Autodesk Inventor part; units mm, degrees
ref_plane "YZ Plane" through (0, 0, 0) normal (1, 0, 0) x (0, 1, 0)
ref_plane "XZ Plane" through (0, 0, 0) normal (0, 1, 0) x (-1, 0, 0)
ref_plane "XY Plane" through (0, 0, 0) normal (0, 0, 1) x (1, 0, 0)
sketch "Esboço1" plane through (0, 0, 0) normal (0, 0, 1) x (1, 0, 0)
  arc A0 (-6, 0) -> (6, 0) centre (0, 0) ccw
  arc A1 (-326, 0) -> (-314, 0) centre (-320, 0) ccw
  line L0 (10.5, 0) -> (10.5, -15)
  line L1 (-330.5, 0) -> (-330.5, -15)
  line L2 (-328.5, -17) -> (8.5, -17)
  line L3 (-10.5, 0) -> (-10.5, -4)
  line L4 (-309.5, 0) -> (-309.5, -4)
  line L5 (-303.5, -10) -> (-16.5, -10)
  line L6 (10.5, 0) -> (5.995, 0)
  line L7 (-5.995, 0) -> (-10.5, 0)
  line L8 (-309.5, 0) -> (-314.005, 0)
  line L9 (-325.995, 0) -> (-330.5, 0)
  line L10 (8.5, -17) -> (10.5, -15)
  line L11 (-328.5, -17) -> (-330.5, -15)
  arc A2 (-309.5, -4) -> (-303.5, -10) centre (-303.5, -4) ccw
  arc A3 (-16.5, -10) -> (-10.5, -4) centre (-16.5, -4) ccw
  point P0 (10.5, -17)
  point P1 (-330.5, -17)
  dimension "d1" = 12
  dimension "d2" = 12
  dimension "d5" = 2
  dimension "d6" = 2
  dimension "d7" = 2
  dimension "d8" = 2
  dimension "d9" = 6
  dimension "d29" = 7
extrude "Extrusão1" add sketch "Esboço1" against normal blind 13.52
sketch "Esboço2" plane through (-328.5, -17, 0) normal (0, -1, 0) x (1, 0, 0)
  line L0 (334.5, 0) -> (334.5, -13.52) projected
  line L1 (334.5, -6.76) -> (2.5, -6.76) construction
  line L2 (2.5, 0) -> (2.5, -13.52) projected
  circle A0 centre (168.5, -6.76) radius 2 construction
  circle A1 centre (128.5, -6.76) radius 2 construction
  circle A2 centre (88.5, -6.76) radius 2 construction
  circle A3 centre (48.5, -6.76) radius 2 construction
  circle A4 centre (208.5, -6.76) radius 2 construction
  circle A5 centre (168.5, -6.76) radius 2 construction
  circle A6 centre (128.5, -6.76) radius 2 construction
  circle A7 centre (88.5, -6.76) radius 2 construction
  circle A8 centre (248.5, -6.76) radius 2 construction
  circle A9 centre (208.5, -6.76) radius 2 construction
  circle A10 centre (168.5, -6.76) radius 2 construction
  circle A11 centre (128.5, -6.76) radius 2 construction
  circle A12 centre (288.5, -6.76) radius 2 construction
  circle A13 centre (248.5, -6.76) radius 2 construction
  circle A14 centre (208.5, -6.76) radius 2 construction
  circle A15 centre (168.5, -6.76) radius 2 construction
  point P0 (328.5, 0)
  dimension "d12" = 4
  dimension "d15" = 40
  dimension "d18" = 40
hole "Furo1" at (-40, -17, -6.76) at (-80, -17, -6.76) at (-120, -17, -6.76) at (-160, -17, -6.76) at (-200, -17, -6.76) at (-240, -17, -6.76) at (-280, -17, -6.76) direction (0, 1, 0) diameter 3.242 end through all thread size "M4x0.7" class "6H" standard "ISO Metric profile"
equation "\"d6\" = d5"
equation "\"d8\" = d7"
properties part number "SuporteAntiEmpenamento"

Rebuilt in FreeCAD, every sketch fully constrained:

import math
import FreeCAD as App
import Part
import Sketcher
from FreeCAD import Vector
Q = App.Units.Quantity

doc = App.newDocument("Part")
body = doc.addObject("PartDesign::Body", "Body")

# Sketch on XY plane
sketch1 = doc.addObject("Sketcher::SketchObject", "Sketch")
body.addObject(sketch1)
sketch1.AttachmentSupport = (doc.XY_Plane, [""])
sketch1.MapMode = "FlatFace"
sketch1.addGeometry([
    Part.ArcOfCircle(Part.Circle(Vector(0, 0, 0), Vector(0, 0, 1), 6), math.radians(180), math.radians(360)),  # 0
    Part.LineSegment(Vector(-6, 0, 0), Vector(-10.5, 0, 0)),  # 1
    Part.LineSegment(Vector(-10.5, 0, 0), Vector(-10.5, -4, 0)),  # 2
    Part.ArcOfCircle(Part.Circle(Vector(-16.5, -4, 0), Vector(0, 0, 1), 6), math.radians(-90), math.radians(0)),  # 3
    Part.LineSegment(Vector(-16.5, -10, 0), Vector(-303.5, -10, 0)),  # 4
    Part.ArcOfCircle(Part.Circle(Vector(-303.5, -4, 0), Vector(0, 0, 1), 6), math.radians(180), math.radians(270)),  # 5
    Part.LineSegment(Vector(-309.5, -4, 0), Vector(-309.5, 0, 0)),  # 6
    Part.LineSegment(Vector(-309.5, 0, 0), Vector(-314, 0, 0)),  # 7
    Part.ArcOfCircle(Part.Circle(Vector(-320, 0, 0), Vector(0, 0, 1), 6), math.radians(180), math.radians(360)),  # 8
    Part.LineSegment(Vector(-326, 0, 0), Vector(-330.5, 0, 0)),  # 9
    Part.LineSegment(Vector(-330.5, 0, 0), Vector(-330.5, -15, 0)),  # 10
    Part.LineSegment(Vector(-330.5, -15, 0), Vector(-328.5, -17, 0)),  # 11
    Part.LineSegment(Vector(-328.5, -17, 0), Vector(8.5, -17, 0)),  # 12
    Part.LineSegment(Vector(8.5, -17, 0), Vector(10.5, -15, 0)),  # 13
    Part.LineSegment(Vector(10.5, -15, 0), Vector(10.5, 0, 0)),  # 14
    Part.LineSegment(Vector(10.5, 0, 0), Vector(6, 0, 0)),  # 15
], False)
sketch1.addConstraint([
    Sketcher.Constraint("Coincident", 0, 1, 1, 1),
    Sketcher.Constraint("Coincident", 1, 2, 2, 1),
    Sketcher.Constraint("Tangent", 2, 2, 3, 2),
    Sketcher.Constraint("Tangent", 3, 1, 4, 1),
    Sketcher.Constraint("Tangent", 4, 2, 5, 2),
    Sketcher.Constraint("Tangent", 5, 1, 6, 1),
    Sketcher.Constraint("Coincident", 6, 2, 7, 1),
    Sketcher.Constraint("Coincident", 7, 2, 8, 2),
    Sketcher.Constraint("Coincident", 8, 1, 9, 1),
    Sketcher.Constraint("Coincident", 9, 2, 10, 1),
    Sketcher.Constraint("Coincident", 10, 2, 11, 1),
    Sketcher.Constraint("Coincident", 11, 2, 12, 1),
    Sketcher.Constraint("Coincident", 12, 2, 13, 1),
    Sketcher.Constraint("Coincident", 13, 2, 14, 1),
    Sketcher.Constraint("Coincident", 14, 2, 15, 1),
    Sketcher.Constraint("Coincident", 15, 2, 0, 2),
    Sketcher.Constraint("Horizontal", 1),
    Sketcher.Constraint("Vertical", 2),
    Sketcher.Constraint("Horizontal", 4),
    Sketcher.Constraint("Vertical", 6),
    Sketcher.Constraint("Horizontal", 7),
    Sketcher.Constraint("Horizontal", 9),
    Sketcher.Constraint("Vertical", 10),
    Sketcher.Constraint("Horizontal", 12),
    Sketcher.Constraint("Vertical", 14),
    Sketcher.Constraint("Horizontal", 15),
    Sketcher.Constraint("Coincident", 0, 3, -1, 1),
    Sketcher.Constraint("Equal", 0, 3),
    Sketcher.Constraint("Equal", 3, 5),
    Sketcher.Constraint("Equal", 5, 8),
    Sketcher.Constraint("Symmetric", 1, 2, 14, 2, -1, 1),
    Sketcher.Constraint("PointOnObject", 8, 3, -1),
    Sketcher.Constraint("PointOnObject", 0, 1, -1),
    Sketcher.Constraint("PointOnObject", 6, 2, -1),
    Sketcher.Constraint("PointOnObject", 8, 1, -1),
    Sketcher.Constraint("Perpendicular", 11, 13),
    Sketcher.Constraint("Horizontal", 10, 2, 13, 2),
    Sketcher.Constraint("Equal", 1, 7),
    Sketcher.Constraint("Equal", 7, 9),
    Sketcher.Constraint("Equal", 11, 13),
    Sketcher.Constraint("Radius", 0, Q("6 mm")),
    Sketcher.Constraint("DistanceX", 10, 2, 11, 2, Q("2 mm")),
    Sketcher.Constraint("DistanceY", 12, 2, 3, 1, Q("7 mm")),
    Sketcher.Constraint("DistanceX", 4, 2, 4, 1, Q("287 mm")),
    Sketcher.Constraint("DistanceX", 12, 1, 12, 2, Q("337 mm")),
    Sketcher.Constraint("DistanceY", 2, 2, 2, 1, Q("4 mm")),
])
pad1 = doc.addObject("PartDesign::Pad", "Pad")
body.addObject(pad1)
pad1.Profile = sketch1
pad1.Length = 13.52
pad1.Reversed = True

# Sketch on XZ plane
sketch2 = doc.addObject("Sketcher::SketchObject", "Sketch001")
body.addObject(sketch2)
sketch2.AttachmentSupport = (doc.XZ_Plane, [""])
sketch2.MapMode = "FlatFace"
sketch2.AttachmentOffset = App.Placement(Vector(0, 0, 17), App.Rotation())
sketch2.addGeometry([
    Part.Circle(Vector(-40, -6.8, 0), Vector(0, 0, 1), 1.6),  # 0
    Part.Circle(Vector(-80, -6.8, 0), Vector(0, 0, 1), 1.6),  # 1
    Part.Circle(Vector(-120, -6.8, 0), Vector(0, 0, 1), 1.6),  # 2
    Part.Circle(Vector(-160, -6.8, 0), Vector(0, 0, 1), 1.6),  # 3
    Part.Circle(Vector(-200, -6.8, 0), Vector(0, 0, 1), 1.6),  # 4
    Part.Circle(Vector(-240, -6.8, 0), Vector(0, 0, 1), 1.6),  # 5
    Part.Circle(Vector(-280, -6.8, 0), Vector(0, 0, 1), 1.6),  # 6
], False)
sketch2.addConstraint([
    Sketcher.Constraint("Equal", 0, 1),
    Sketcher.Constraint("Equal", 1, 2),
    Sketcher.Constraint("Equal", 2, 3),
    Sketcher.Constraint("Equal", 3, 4),
    Sketcher.Constraint("Equal", 4, 5),
    Sketcher.Constraint("Equal", 5, 6),
    Sketcher.Constraint("Horizontal", 0, 3, 1, 3),
    Sketcher.Constraint("Horizontal", 1, 3, 2, 3),
    Sketcher.Constraint("Horizontal", 2, 3, 3, 3),
    Sketcher.Constraint("Horizontal", 3, 3, 4, 3),
    Sketcher.Constraint("Horizontal", 4, 3, 5, 3),
    Sketcher.Constraint("Horizontal", 5, 3, 6, 3),
    Sketcher.Constraint("Diameter", 0, Q("3.242 mm")),
    Sketcher.Constraint("DistanceX", 0, 3, -1, 1, Q("40 mm")),
    Sketcher.Constraint("DistanceX", 1, 3, -1, 1, Q("80 mm")),
    Sketcher.Constraint("DistanceX", 2, 3, -1, 1, Q("120 mm")),
    Sketcher.Constraint("DistanceX", 3, 3, -1, 1, Q("160 mm")),
    Sketcher.Constraint("DistanceX", 4, 3, -1, 1, Q("200 mm")),
    Sketcher.Constraint("DistanceX", 5, 3, -1, 1, Q("240 mm")),
    Sketcher.Constraint("DistanceX", 6, 3, -1, 1, Q("280 mm")),
    Sketcher.Constraint("DistanceY", 0, 3, -1, 1, Q("6.76 mm")),
])
doc.recompute()
hole = doc.addObject("PartDesign::Hole", "Hole")
body.addObject(hole)
hole.Profile = sketch2
hole.ThreadType = "None"
hole.Diameter = 3.242
hole.DepthType = "ThroughAll"

doc.recompute()
